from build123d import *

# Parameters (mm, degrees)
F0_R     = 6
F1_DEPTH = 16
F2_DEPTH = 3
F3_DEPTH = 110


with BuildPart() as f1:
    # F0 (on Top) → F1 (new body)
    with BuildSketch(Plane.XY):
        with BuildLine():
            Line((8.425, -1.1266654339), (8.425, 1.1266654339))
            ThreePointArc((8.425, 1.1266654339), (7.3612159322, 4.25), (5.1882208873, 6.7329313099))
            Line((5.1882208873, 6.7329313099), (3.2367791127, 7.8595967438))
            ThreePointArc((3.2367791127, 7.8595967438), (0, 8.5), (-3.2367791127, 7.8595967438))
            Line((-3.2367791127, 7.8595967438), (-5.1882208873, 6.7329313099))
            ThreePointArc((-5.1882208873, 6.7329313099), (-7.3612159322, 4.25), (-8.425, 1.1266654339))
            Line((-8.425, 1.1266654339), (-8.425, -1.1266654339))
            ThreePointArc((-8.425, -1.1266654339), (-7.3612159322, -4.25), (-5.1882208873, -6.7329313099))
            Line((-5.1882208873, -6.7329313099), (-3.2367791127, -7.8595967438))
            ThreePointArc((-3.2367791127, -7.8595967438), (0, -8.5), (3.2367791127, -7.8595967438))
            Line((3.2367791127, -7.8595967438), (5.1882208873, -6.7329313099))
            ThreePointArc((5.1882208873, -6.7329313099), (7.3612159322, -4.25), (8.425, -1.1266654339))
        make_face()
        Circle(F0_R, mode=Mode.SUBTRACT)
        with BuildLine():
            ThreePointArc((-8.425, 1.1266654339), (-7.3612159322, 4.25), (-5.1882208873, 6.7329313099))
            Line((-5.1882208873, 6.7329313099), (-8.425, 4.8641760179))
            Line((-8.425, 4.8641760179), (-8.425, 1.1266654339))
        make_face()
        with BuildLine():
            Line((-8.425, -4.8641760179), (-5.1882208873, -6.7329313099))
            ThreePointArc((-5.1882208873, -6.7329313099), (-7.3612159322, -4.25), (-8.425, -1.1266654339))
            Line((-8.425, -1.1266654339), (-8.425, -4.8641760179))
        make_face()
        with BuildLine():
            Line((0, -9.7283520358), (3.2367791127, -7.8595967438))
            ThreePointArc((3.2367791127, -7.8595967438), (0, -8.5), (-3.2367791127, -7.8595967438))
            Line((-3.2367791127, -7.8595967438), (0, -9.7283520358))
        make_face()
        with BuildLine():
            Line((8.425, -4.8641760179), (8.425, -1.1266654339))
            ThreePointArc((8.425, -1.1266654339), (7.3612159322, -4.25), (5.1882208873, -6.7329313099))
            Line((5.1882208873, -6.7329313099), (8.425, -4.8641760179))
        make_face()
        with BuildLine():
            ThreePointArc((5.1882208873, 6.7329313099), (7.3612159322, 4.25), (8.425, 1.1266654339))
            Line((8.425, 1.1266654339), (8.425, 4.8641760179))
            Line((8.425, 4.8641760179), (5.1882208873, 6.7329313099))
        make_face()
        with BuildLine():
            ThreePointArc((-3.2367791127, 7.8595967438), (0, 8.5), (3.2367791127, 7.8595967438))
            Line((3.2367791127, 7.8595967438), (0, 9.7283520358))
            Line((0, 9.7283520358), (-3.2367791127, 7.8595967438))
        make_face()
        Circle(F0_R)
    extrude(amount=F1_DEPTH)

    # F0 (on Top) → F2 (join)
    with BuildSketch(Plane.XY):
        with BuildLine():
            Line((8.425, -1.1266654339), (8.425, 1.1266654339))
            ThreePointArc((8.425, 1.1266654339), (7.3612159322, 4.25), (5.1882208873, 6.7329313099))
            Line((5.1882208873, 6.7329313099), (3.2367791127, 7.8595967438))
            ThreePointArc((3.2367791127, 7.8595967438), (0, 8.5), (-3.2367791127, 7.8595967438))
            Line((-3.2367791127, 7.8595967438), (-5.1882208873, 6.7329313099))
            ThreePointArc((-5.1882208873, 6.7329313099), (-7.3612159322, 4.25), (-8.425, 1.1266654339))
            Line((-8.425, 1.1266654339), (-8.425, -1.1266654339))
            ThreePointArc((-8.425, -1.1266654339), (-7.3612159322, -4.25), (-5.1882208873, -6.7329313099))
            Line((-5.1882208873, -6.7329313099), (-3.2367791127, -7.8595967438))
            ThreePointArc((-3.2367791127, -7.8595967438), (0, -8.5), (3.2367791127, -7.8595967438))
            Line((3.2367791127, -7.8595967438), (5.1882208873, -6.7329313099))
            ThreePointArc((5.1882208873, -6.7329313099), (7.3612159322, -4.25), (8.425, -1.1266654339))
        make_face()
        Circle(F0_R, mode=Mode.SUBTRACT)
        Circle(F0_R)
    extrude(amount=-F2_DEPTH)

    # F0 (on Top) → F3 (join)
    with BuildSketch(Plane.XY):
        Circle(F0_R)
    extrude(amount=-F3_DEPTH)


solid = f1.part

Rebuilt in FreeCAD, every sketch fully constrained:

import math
import FreeCAD as App
import Part
import Sketcher
Q = App.Units.Quantity


def add_polygon(sketch, points):
    """Adds a closed chain of lines whose ends are joined by coincident constraints."""
    first, n = sketch.GeometryCount, len(points)
    for a, b in zip(points, points[1:] + points[:1]):
        sketch.addGeometry(Part.LineSegment(App.Vector(*a, 0), App.Vector(*b, 0)), False)
    for i in range(n):
        sketch.addConstraint(Sketcher.Constraint("Coincident", first + i, 2, first + (i + 1) % n, 1))

doc = App.newDocument("Part")
params = doc.addObject("Spreadsheet::Sheet", "Params")
for row, (alias, value) in enumerate([
    ("pad1_length", "16 mm"),
    ("sketch2_radius", "8.5 mm"),
    ("pad2_length", "3 mm"),
    ("sketch3_diameter", "12 mm"),
    ("pad3_length", "110 mm"),
], start=1):
    params.set(f"A{row}", alias)
    params.set(f"B{row}", "=" + value)
    params.setAlias(f"B{row}", alias)

body = doc.addObject("PartDesign::Body", "Body")

# Sketch on XY plane
sketch1 = body.newObject("Sketcher::SketchObject", "Sketch")
sketch1.AttachmentSupport = (doc.getObject("XY_Plane"), [""])
sketch1.MapMode = "FlatFace"
add_polygon(sketch1, [(5.2, 6.7), (3.2, 7.9), (0, 9.7), (-3.2, 7.9), (-5.2, 6.7), (-8.4, 4.9), (-8.4, -4.9), (-5.2, -6.7), (-3.2, -7.9), (0, -9.7), (3.2, -7.9), (5.2, -6.7), (8.4, -4.9), (8.4, 4.9)])  # lines 0-13
sketch1.addConstraint([
    Sketcher.Constraint("Vertical", 5),
    Sketcher.Constraint("Vertical", 12),
    Sketcher.Constraint("Symmetric", 0, 2, 7, 2, -1, 1),
    Sketcher.Constraint("Symmetric", 1, 2, 8, 2, -1, 1),
    Sketcher.Constraint("Symmetric", 2, 2, 9, 2, -1, 1),
    Sketcher.Constraint("Symmetric", 3, 2, 10, 2, -1, 1),
    Sketcher.Constraint("Symmetric", 4, 2, 11, 2, -1, 1),
    Sketcher.Constraint("Symmetric", 6, 2, 13, 2, -1, 1),
    Sketcher.Constraint("Symmetric", 0, 2, 2, 2, -2),
    Sketcher.Constraint("Symmetric", 6, 2, 10, 2, -2),
    Sketcher.Constraint("PointOnObject", 1, 2, -2),
    Sketcher.Constraint("Parallel", 0, 1),
    Sketcher.Constraint("Parallel", 3, 4),
    Sketcher.Constraint("Parallel", 1, 6),
    Sketcher.Constraint("Parallel", 8, 13),
    Sketcher.Constraint("Equal", 2, 4),
    Sketcher.Constraint("Angle", 0, Q("150 deg")),
    Sketcher.Constraint("DistanceX", 4, 2, -1, 1, 8.425),
    Sketcher.Constraint("Distance", 0, 2.253331),
    Sketcher.Constraint("DistanceY", 5, 2, 5, 1, 9.728352),
])
pad1 = body.newObject("PartDesign::Pad", "Pad")
pad1.Profile = sketch1
pad1.setExpression("Length", "Params.pad1_length")

# Sketch on XY plane
sketch2 = body.newObject("Sketcher::SketchObject", "Sketch001")
sketch2.AttachmentSupport = (doc.getObject("XY_Plane"), [""])
sketch2.MapMode = "FlatFace"
sketch2.addGeometry([
    Part.LineSegment(App.Vector(8.4, -1.1, 0), App.Vector(8.4, 1.1, 0)),  # 0
    Part.ArcOfCircle(Part.Circle(App.Vector(0, 0, 0), App.Vector(0, 0, 1), 8.5), math.radians(8), math.radians(52)),  # 1
    Part.LineSegment(App.Vector(5.2, 6.7, 0), App.Vector(3.2, 7.9, 0)),  # 2
    Part.ArcOfCircle(Part.Circle(App.Vector(0, 0, 0), App.Vector(0, 0, 1), 8.5), math.radians(68), math.radians(112)),  # 3
    Part.LineSegment(App.Vector(-3.2, 7.9, 0), App.Vector(-5.2, 6.7, 0)),  # 4
    Part.ArcOfCircle(Part.Circle(App.Vector(0, 0, 0), App.Vector(0, 0, 1), 8.5), math.radians(128), math.radians(172)),  # 5
    Part.LineSegment(App.Vector(-8.4, 1.1, 0), App.Vector(-8.4, -1.1, 0)),  # 6
    Part.ArcOfCircle(Part.Circle(App.Vector(0, 0, 0), App.Vector(0, 0, 1), 8.5), math.radians(-172), math.radians(-128)),  # 7
    Part.LineSegment(App.Vector(-5.2, -6.7, 0), App.Vector(-3.2, -7.9, 0)),  # 8
    Part.ArcOfCircle(Part.Circle(App.Vector(0, 0, 0), App.Vector(0, 0, 1), 8.5), math.radians(-112), math.radians(-68)),  # 9
    Part.LineSegment(App.Vector(3.2, -7.9, 0), App.Vector(5.2, -6.7, 0)),  # 10
    Part.ArcOfCircle(Part.Circle(App.Vector(0, 0, 0), App.Vector(0, 0, 1), 8.5), math.radians(-52), math.radians(-8)),  # 11
], False)
sketch2.addConstraint([
    Sketcher.Constraint("Coincident", 0, 2, 1, 1),
    Sketcher.Constraint("Coincident", 1, 2, 2, 1),
    Sketcher.Constraint("Coincident", 2, 2, 3, 1),
    Sketcher.Constraint("Coincident", 3, 2, 4, 1),
    Sketcher.Constraint("Coincident", 4, 2, 5, 1),
    Sketcher.Constraint("Coincident", 5, 2, 6, 1),
    Sketcher.Constraint("Coincident", 6, 2, 7, 1),
    Sketcher.Constraint("Coincident", 7, 2, 8, 1),
    Sketcher.Constraint("Coincident", 8, 2, 9, 1),
    Sketcher.Constraint("Coincident", 9, 2, 10, 1),
    Sketcher.Constraint("Coincident", 10, 2, 11, 1),
    Sketcher.Constraint("Coincident", 11, 2, 0, 1),
    Sketcher.Constraint("Vertical", 0),
    Sketcher.Constraint("Vertical", 6),
    Sketcher.Constraint("Coincident", 1, 3, -1, 1),
    Sketcher.Constraint("Coincident", 3, 3, -1, 1),
    Sketcher.Constraint("Coincident", 5, 3, -1, 1),
    Sketcher.Constraint("Coincident", 7, 3, -1, 1),
    Sketcher.Constraint("Coincident", 9, 3, -1, 1),
    Sketcher.Constraint("Coincident", 11, 3, -1, 1),
    Sketcher.Constraint("Equal", 1, 3),
    Sketcher.Constraint("Equal", 3, 5),
    Sketcher.Constraint("Equal", 5, 7),
    Sketcher.Constraint("Equal", 7, 9),
    Sketcher.Constraint("Equal", 9, 11),
    Sketcher.Constraint("Parallel", 2, 8),
    Sketcher.Constraint("Parallel", 4, 10),
    Sketcher.Constraint("Horizontal", 2, 2, 3, 2),
    Sketcher.Constraint("Horizontal", 1, 2, 4, 2),
    Sketcher.Constraint("Horizontal", 0, 2, 5, 2),
    Sketcher.Constraint("Horizontal", 8, 2, 9, 2),
    Sketcher.Constraint("Vertical", 4, 2, 7, 2),
    Sketcher.Constraint("Radius", 1, 8.5),
    Sketcher.Constraint("Angle", 2, Q("150 deg")),
    Sketcher.Constraint("DistanceX", -1, 1, 0, 2, 8.425),
    Sketcher.Constraint("DistanceX", 3, 2, 1, 2, 8.425),
])
sketch2.setExpression("Constraints[32]", "Params.sketch2_radius")
pad2 = body.newObject("PartDesign::Pad", "Pad001")
pad2.Profile = sketch2
pad2.setExpression("Length", "Params.pad2_length")
pad2.Reversed = True

# Sketch on XY plane
sketch3 = body.newObject("Sketcher::SketchObject", "Sketch002")
sketch3.AttachmentSupport = (doc.getObject("XY_Plane"), [""])
sketch3.MapMode = "FlatFace"
sketch3.addGeometry(Part.Circle(App.Vector(0, 0, 0), App.Vector(0, 0, 1), 6), False)
sketch3.addConstraint([
    Sketcher.Constraint("Coincident", 0, 3, -1, 1),
    Sketcher.Constraint("Diameter", 0, 12.0),
])
sketch3.setExpression("Constraints[1]", "Params.sketch3_diameter")
pad3 = body.newObject("PartDesign::Pad", "Pad002")
pad3.Profile = sketch3
pad3.setExpression("Length", "Params.pad3_length")
pad3.Reversed = True

doc.recompute()
